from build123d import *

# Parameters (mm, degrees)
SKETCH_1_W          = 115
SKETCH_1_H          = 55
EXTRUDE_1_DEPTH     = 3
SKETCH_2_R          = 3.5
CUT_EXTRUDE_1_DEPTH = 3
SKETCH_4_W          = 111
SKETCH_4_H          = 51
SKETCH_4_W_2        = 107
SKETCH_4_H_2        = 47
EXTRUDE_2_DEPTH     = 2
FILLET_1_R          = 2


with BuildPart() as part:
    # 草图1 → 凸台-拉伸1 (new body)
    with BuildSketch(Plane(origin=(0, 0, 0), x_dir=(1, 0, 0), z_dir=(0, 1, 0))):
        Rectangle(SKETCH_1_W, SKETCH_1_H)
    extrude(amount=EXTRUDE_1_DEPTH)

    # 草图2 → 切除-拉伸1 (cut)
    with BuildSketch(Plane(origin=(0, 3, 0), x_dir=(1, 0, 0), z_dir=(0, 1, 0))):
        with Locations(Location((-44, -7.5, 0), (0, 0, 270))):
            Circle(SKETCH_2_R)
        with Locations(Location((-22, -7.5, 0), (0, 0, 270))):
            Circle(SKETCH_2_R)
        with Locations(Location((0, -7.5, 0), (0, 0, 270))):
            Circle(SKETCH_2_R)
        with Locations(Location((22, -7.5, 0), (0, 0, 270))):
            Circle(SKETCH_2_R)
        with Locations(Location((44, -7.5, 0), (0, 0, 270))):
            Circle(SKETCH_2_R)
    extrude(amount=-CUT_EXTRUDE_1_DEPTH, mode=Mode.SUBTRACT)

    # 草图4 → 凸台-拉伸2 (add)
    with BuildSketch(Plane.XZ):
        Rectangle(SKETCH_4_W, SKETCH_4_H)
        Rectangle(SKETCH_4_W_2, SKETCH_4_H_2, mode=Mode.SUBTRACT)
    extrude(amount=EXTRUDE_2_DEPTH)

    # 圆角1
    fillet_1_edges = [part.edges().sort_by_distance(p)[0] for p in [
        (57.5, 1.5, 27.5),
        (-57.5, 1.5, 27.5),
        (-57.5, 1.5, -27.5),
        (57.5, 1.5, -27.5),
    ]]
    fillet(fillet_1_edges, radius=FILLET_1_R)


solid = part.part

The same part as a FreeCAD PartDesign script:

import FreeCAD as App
import Part
import Sketcher


def edges_at(feature, points):
    """Names of the edges that pass closest to the given points."""
    edges = feature.Shape.Edges
    near = lambda p: min(range(len(edges)), key=lambda i: edges[i].distToShape(Part.Vertex(*p))[0])
    return sorted({f"Edge{near(p) + 1}" for p in points})


def add_polygon(sketch, points):
    """Adds a closed chain of lines whose ends are joined by coincident constraints."""
    first, n = sketch.GeometryCount, len(points)
    for a, b in zip(points, points[1:] + points[:1]):
        sketch.addGeometry(Part.LineSegment(App.Vector(*a, 0), App.Vector(*b, 0)), False)
    for i in range(n):
        sketch.addConstraint(Sketcher.Constraint("Coincident", first + i, 2, first + (i + 1) % n, 1))

doc = App.newDocument("Part")
body = doc.addObject("PartDesign::Body", "Body")

sketch1 = body.newObject("Sketcher::SketchObject", "Sketch")
sketch1.AttachmentSupport = (doc.getObject("XZ_Plane"), [""])
sketch1.MapMode = "FlatFace"
add_polygon(sketch1, [(-58, -28), (-58, 28), (58, 28), (58, -28)])
sketch1.addConstraint(Sketcher.Constraint("Vertical", 0))
sketch1.addConstraint(Sketcher.Constraint("Horizontal", 1))
sketch1.addConstraint(Sketcher.Constraint("Vertical", 2))
sketch1.addConstraint(Sketcher.Constraint("Horizontal", 3))
sketch1.addConstraint(Sketcher.Constraint("Symmetric", 0, 2, 2, 2, -1, 1))
sketch1.addConstraint(Sketcher.Constraint("DistanceX", 1, 1, 1, 2, 115.0))
sketch1.addConstraint(Sketcher.Constraint("DistanceY", 0, 1, 0, 2, 55.0))
pad1 = body.newObject("PartDesign::Pad", "Pad")
pad1.Profile = sketch1
pad1.Length = 3
pad1.Reversed = True

sketch2 = body.newObject("Sketcher::SketchObject", "Sketch001")
sketch2.AttachmentSupport = (doc.getObject("XZ_Plane"), [""])
sketch2.MapMode = "FlatFace"
sketch2.AttachmentOffset = App.Placement(App.Vector(0, 0, -3), App.Rotation())
sketch2.addGeometry(Part.Circle(App.Vector(-44, 7.5, 0), App.Vector(0, 0, 1), 3.5), False)
sketch2.addGeometry(Part.Circle(App.Vector(-22, 7.5, 0), App.Vector(0, 0, 1), 3.5), False)
sketch2.addGeometry(Part.Circle(App.Vector(0, 7.5, 0), App.Vector(0, 0, 1), 3.5), False)
sketch2.addGeometry(Part.Circle(App.Vector(22, 7.5, 0), App.Vector(0, 0, 1), 3.5), False)
sketch2.addGeometry(Part.Circle(App.Vector(44, 7.5, 0), App.Vector(0, 0, 1), 3.5), False)
sketch2.addConstraint(Sketcher.Constraint("Equal", 0, 1))
sketch2.addConstraint(Sketcher.Constraint("Equal", 1, 2))
sketch2.addConstraint(Sketcher.Constraint("Equal", 2, 3))
sketch2.addConstraint(Sketcher.Constraint("Equal", 3, 4))
sketch2.addConstraint(Sketcher.Constraint("Symmetric", 1, 3, 3, 3, -2))
sketch2.addConstraint(Sketcher.Constraint("Symmetric", 0, 3, 4, 3, -2))
sketch2.addConstraint(Sketcher.Constraint("PointOnObject", 2, 3, -2))
sketch2.addConstraint(Sketcher.Constraint("Horizontal", 0, 3, 1, 3))
sketch2.addConstraint(Sketcher.Constraint("Horizontal", 1, 3, 2, 3))
sketch2.addConstraint(Sketcher.Constraint("Diameter", 0, 7.0))
sketch2.addConstraint(Sketcher.Constraint("DistanceX", 0, 3, -1, 1, 44.0))
sketch2.addConstraint(Sketcher.Constraint("DistanceX", 1, 3, -1, 1, 22.0))
sketch2.addConstraint(Sketcher.Constraint("DistanceY", -1, 1, 0, 3, 7.5))
pocket1 = body.newObject("PartDesign::Pocket", "Pocket")
pocket1.Profile = sketch2
pocket1.Length = 3
pocket1.Reversed = True

sketch3 = body.newObject("Sketcher::SketchObject", "Sketch002")
sketch3.AttachmentSupport = (doc.getObject("XZ_Plane"), [""])
sketch3.MapMode = "FlatFace"
add_polygon(sketch3, [(-56, 26), (-56, -26), (56, -26), (56, 26)])
add_polygon(sketch3, [(54, -24), (-54, -24), (-54, 24), (54, 24)])
sketch3.addConstraint(Sketcher.Constraint("Vertical", 0))
sketch3.addConstraint(Sketcher.Constraint("Horizontal", 1))
sketch3.addConstraint(Sketcher.Constraint("Vertical", 2))
sketch3.addConstraint(Sketcher.Constraint("Horizontal", 3))
sketch3.addConstraint(Sketcher.Constraint("Horizontal", 4))
sketch3.addConstraint(Sketcher.Constraint("Vertical", 5))
sketch3.addConstraint(Sketcher.Constraint("Horizontal", 6))
sketch3.addConstraint(Sketcher.Constraint("Vertical", 7))
sketch3.addConstraint(Sketcher.Constraint("Symmetric", 0, 2, 2, 2, -1, 1))
sketch3.addConstraint(Sketcher.Constraint("Symmetric", 4, 2, 6, 2, -1, 1))
sketch3.addConstraint(Sketcher.Constraint("DistanceX", 1, 1, 1, 2, 111.0))
sketch3.addConstraint(Sketcher.Constraint("DistanceX", 4, 2, 4, 1, 107.0))
sketch3.addConstraint(Sketcher.Constraint("DistanceY", 0, 2, 0, 1, 51.0))
sketch3.addConstraint(Sketcher.Constraint("DistanceY", 5, 1, 5, 2, 47.0))
pad2 = body.newObject("PartDesign::Pad", "Pad001")
pad2.Profile = sketch3
pad2.Length = 2
doc.recompute()

fillet = body.newObject("PartDesign::Fillet", "Fillet")
fillet.Base = (pad2, edges_at(pad2, [
    (57.5, 1.5, 27.5),
    (-57.5, 1.5, 27.5),
    (-57.5, 1.5, -27.5),
    (57.5, 1.5, -27.5),
]))
fillet.Radius = 2

doc.recompute()
